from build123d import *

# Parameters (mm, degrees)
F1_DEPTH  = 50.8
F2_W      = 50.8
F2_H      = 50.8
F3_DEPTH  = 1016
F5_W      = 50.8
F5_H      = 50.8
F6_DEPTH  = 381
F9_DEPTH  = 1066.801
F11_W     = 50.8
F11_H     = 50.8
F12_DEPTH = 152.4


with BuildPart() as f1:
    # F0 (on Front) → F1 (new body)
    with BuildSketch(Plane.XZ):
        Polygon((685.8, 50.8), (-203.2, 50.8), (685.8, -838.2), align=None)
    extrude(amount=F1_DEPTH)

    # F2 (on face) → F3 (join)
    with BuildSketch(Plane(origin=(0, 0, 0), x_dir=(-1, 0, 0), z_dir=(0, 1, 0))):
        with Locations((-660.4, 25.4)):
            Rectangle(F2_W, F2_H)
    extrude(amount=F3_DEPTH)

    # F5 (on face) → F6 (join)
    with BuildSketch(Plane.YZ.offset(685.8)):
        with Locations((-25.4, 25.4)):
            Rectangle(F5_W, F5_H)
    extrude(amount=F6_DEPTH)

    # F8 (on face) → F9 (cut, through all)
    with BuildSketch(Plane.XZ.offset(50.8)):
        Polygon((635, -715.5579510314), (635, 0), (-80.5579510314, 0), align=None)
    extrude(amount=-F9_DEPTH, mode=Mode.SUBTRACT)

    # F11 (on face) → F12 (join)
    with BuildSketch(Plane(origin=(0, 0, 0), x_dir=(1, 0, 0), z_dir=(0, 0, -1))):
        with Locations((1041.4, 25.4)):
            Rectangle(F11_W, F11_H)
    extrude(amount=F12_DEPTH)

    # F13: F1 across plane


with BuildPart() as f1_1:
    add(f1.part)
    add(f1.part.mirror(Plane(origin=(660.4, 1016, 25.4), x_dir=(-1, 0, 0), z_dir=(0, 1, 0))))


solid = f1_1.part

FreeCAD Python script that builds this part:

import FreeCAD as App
import Part
import Sketcher
Q = App.Units.Quantity

doc = App.newDocument("Part")
body = doc.addObject("PartDesign::Body", "Body")

# Sketch on XZ plane
sketch1 = body.newObject("Sketcher::SketchObject", "Sketch")
sketch1.AttachmentSupport = (doc.getObject("XZ_Plane"), [""])
sketch1.MapMode = "FlatFace"
sketch1.addGeometry([
    Part.LineSegment(App.Vector(686, 51, 0), App.Vector(-203, 51, 0)),
    Part.LineSegment(App.Vector(-203, 51, 0), App.Vector(686, -838, 0)),
    Part.LineSegment(App.Vector(686, -838, 0), App.Vector(686, 51, 0)),
], False)
sketch1.addConstraint([
    Sketcher.Constraint("Coincident", 0, 2, 1, 1),
    Sketcher.Constraint("Coincident", 1, 2, 2, 1),
    Sketcher.Constraint("Coincident", 2, 2, 0, 1),
    Sketcher.Constraint("Horizontal", 0),
    Sketcher.Constraint("Vertical", 2),
    Sketcher.Constraint("Equal", 0, 2),
    Sketcher.Constraint("DistanceX", 0, 2, 0, 1, Q("35 in")),
    Sketcher.Constraint("DistanceX", 0, 2, -1, 1, Q("8 in")),
    Sketcher.Constraint("DistanceY", -1, 1, 0, 2, Q("2 in")),
])
pad1 = body.newObject("PartDesign::Pad", "Pad")
pad1.Profile = sketch1
pad1.Length = Q("2 in")

# Sketch on XZ plane
sketch2 = body.newObject("Sketcher::SketchObject", "Sketch001")
sketch2.AttachmentSupport = (doc.getObject("XZ_Plane"), [""])
sketch2.MapMode = "FlatFace"
sketch2.addGeometry([
    Part.LineSegment(App.Vector(686, 51, 0), App.Vector(686, 0, 0)),
    Part.LineSegment(App.Vector(686, 0, 0), App.Vector(635, 0, 0)),
    Part.LineSegment(App.Vector(635, 0, 0), App.Vector(635, 51, 0)),
    Part.LineSegment(App.Vector(635, 51, 0), App.Vector(686, 51, 0)),
], False)
sketch2.addConstraint([
    Sketcher.Constraint("Coincident", 0, 2, 1, 1),
    Sketcher.Constraint("Coincident", 1, 2, 2, 1),
    Sketcher.Constraint("Coincident", 2, 2, 3, 1),
    Sketcher.Constraint("Coincident", 3, 2, 0, 1),
    Sketcher.Constraint("Vertical", 0),
    Sketcher.Constraint("Horizontal", 1),
    Sketcher.Constraint("Vertical", 2),
    Sketcher.Constraint("Horizontal", 3),
    Sketcher.Constraint("PointOnObject", 0, 2, -1),
    Sketcher.Constraint("Equal", 3, 0),
    Sketcher.Constraint("DistanceX", 1, 2, 1, 1, Q("2 in")),
    Sketcher.Constraint("DistanceX", -1, 1, 0, 2, Q("27 in")),
])
pad2 = body.newObject("PartDesign::Pad", "Pad001")
pad2.Profile = sketch2
pad2.Length = Q("40 in")
pad2.Reversed = True

# Sketch on YZ plane
sketch3 = body.newObject("Sketcher::SketchObject", "Sketch002")
sketch3.AttachmentSupport = (doc.getObject("YZ_Plane"), [""])
sketch3.MapMode = "FlatFace"
sketch3.AttachmentOffset = App.Placement(App.Vector(0, 0, 27 * 25.4), App.Rotation())
sketch3.addGeometry([
    Part.LineSegment(App.Vector(-51, 51, 0), App.Vector(-51, 0, 0)),
    Part.LineSegment(App.Vector(-51, 0, 0), App.Vector(0, 0, 0)),
    Part.LineSegment(App.Vector(0, 0, 0), App.Vector(0, 51, 0)),
    Part.LineSegment(App.Vector(0, 51, 0), App.Vector(-51, 51, 0)),
], False)
sketch3.addConstraint([
    Sketcher.Constraint("Coincident", 0, 2, 1, 1),
    Sketcher.Constraint("Coincident", 1, 2, 2, 1),
    Sketcher.Constraint("Coincident", 2, 2, 3, 1),
    Sketcher.Constraint("Coincident", 3, 2, 0, 1),
    Sketcher.Constraint("Vertical", 0),
    Sketcher.Constraint("Horizontal", 1),
    Sketcher.Constraint("Vertical", 2),
    Sketcher.Constraint("Horizontal", 3),
    Sketcher.Constraint("Coincident", 1, 2, -1, 1),
    Sketcher.Constraint("Equal", 3, 0),
    Sketcher.Constraint("DistanceX", 1, 1, 1, 2, Q("2 in")),
])
pad3 = body.newObject("PartDesign::Pad", "Pad002")
pad3.Profile = sketch3
pad3.Length = Q("15 in")

# Sketch on XZ plane
sketch4 = body.newObject("Sketcher::SketchObject", "Sketch003")
sketch4.AttachmentSupport = (doc.getObject("XZ_Plane"), [""])
sketch4.MapMode = "FlatFace"
sketch4.AttachmentOffset = App.Placement(App.Vector(0, 0, 2 * 25.4), App.Rotation())
sketch4.addGeometry([
    Part.LineSegment(App.Vector(635, -716, 0), App.Vector(635, 0, 0)),
    Part.LineSegment(App.Vector(635, 0, 0), App.Vector(-81, 0, 0)),
    Part.LineSegment(App.Vector(-81, 0, 0), App.Vector(635, -716, 0)),
], False)
sketch4.addConstraint([
    Sketcher.Constraint("Coincident", 0, 2, 1, 1),
    Sketcher.Constraint("Coincident", 1, 2, 2, 1),
    Sketcher.Constraint("Coincident", 2, 2, 0, 1),
    Sketcher.Constraint("Vertical", 0),
    Sketcher.Constraint("Horizontal", 1),
    Sketcher.Constraint("PointOnObject", 0, 2, -1),
    Sketcher.Constraint("Equal", 1, 0),
    Sketcher.Constraint("DistanceX", -1, 1, 0, 2, Q("25 in")),
    Sketcher.Constraint("DistanceX", 1, 2, 1, 1, 715.557951),
])
pocket1 = body.newObject("PartDesign::Pocket", "Pocket")
pocket1.Profile = sketch4
pocket1.Type = "ThroughAll"

# Sketch on XY plane
sketch5 = body.newObject("Sketcher::SketchObject", "Sketch004")
sketch5.AttachmentSupport = (doc.getObject("XY_Plane"), [""])
sketch5.MapMode = "FlatFace"
sketch5.addGeometry([
    Part.LineSegment(App.Vector(1016, -51, 0), App.Vector(1016, 0, 0)),
    Part.LineSegment(App.Vector(1016, 0, 0), App.Vector(1067, 0, 0)),
    Part.LineSegment(App.Vector(1067, 0, 0), App.Vector(1067, -51, 0)),
    Part.LineSegment(App.Vector(1067, -51, 0), App.Vector(1016, -51, 0)),
], False)
sketch5.addConstraint([
    Sketcher.Constraint("Coincident", 0, 2, 1, 1),
    Sketcher.Constraint("Coincident", 1, 2, 2, 1),
    Sketcher.Constraint("Coincident", 2, 2, 3, 1),
    Sketcher.Constraint("Coincident", 3, 2, 0, 1),
    Sketcher.Constraint("Vertical", 0),
    Sketcher.Constraint("Horizontal", 1),
    Sketcher.Constraint("Vertical", 2),
    Sketcher.Constraint("Horizontal", 3),
    Sketcher.Constraint("PointOnObject", 0, 2, -1),
    Sketcher.Constraint("Equal", 3, 0),
    Sketcher.Constraint("DistanceX", 1, 1, 1, 2, Q("2 in")),
    Sketcher.Constraint("DistanceX", -1, 1, 0, 2, Q("40 in")),
])
pad4 = body.newObject("PartDesign::Pad", "Pad003")
pad4.Profile = sketch5
pad4.Length = Q("6 in")
pad4.Reversed = True
body2 = doc.addObject("PartDesign::Body", "Body001")
doc.recompute()

body2.BaseFeature = body
doc.recompute()

mirroring = doc.addObject("Part::Mirroring", "Mirroring")
mirroring.Source = body
mirroring.Base = App.Vector(660.4, 1016, 25.4)
mirroring.Normal = App.Vector(0, 1, 0)
body3 = doc.addObject("PartDesign::Body", "Body002")
body3.BaseFeature = mirroring
boolean = body2.newObject("PartDesign::Boolean", "Boolean")
boolean.Type = "Fuse"
boolean.addObjects([body3])
doc.recompute()
mirroring.Visibility = False

doc.recompute()
